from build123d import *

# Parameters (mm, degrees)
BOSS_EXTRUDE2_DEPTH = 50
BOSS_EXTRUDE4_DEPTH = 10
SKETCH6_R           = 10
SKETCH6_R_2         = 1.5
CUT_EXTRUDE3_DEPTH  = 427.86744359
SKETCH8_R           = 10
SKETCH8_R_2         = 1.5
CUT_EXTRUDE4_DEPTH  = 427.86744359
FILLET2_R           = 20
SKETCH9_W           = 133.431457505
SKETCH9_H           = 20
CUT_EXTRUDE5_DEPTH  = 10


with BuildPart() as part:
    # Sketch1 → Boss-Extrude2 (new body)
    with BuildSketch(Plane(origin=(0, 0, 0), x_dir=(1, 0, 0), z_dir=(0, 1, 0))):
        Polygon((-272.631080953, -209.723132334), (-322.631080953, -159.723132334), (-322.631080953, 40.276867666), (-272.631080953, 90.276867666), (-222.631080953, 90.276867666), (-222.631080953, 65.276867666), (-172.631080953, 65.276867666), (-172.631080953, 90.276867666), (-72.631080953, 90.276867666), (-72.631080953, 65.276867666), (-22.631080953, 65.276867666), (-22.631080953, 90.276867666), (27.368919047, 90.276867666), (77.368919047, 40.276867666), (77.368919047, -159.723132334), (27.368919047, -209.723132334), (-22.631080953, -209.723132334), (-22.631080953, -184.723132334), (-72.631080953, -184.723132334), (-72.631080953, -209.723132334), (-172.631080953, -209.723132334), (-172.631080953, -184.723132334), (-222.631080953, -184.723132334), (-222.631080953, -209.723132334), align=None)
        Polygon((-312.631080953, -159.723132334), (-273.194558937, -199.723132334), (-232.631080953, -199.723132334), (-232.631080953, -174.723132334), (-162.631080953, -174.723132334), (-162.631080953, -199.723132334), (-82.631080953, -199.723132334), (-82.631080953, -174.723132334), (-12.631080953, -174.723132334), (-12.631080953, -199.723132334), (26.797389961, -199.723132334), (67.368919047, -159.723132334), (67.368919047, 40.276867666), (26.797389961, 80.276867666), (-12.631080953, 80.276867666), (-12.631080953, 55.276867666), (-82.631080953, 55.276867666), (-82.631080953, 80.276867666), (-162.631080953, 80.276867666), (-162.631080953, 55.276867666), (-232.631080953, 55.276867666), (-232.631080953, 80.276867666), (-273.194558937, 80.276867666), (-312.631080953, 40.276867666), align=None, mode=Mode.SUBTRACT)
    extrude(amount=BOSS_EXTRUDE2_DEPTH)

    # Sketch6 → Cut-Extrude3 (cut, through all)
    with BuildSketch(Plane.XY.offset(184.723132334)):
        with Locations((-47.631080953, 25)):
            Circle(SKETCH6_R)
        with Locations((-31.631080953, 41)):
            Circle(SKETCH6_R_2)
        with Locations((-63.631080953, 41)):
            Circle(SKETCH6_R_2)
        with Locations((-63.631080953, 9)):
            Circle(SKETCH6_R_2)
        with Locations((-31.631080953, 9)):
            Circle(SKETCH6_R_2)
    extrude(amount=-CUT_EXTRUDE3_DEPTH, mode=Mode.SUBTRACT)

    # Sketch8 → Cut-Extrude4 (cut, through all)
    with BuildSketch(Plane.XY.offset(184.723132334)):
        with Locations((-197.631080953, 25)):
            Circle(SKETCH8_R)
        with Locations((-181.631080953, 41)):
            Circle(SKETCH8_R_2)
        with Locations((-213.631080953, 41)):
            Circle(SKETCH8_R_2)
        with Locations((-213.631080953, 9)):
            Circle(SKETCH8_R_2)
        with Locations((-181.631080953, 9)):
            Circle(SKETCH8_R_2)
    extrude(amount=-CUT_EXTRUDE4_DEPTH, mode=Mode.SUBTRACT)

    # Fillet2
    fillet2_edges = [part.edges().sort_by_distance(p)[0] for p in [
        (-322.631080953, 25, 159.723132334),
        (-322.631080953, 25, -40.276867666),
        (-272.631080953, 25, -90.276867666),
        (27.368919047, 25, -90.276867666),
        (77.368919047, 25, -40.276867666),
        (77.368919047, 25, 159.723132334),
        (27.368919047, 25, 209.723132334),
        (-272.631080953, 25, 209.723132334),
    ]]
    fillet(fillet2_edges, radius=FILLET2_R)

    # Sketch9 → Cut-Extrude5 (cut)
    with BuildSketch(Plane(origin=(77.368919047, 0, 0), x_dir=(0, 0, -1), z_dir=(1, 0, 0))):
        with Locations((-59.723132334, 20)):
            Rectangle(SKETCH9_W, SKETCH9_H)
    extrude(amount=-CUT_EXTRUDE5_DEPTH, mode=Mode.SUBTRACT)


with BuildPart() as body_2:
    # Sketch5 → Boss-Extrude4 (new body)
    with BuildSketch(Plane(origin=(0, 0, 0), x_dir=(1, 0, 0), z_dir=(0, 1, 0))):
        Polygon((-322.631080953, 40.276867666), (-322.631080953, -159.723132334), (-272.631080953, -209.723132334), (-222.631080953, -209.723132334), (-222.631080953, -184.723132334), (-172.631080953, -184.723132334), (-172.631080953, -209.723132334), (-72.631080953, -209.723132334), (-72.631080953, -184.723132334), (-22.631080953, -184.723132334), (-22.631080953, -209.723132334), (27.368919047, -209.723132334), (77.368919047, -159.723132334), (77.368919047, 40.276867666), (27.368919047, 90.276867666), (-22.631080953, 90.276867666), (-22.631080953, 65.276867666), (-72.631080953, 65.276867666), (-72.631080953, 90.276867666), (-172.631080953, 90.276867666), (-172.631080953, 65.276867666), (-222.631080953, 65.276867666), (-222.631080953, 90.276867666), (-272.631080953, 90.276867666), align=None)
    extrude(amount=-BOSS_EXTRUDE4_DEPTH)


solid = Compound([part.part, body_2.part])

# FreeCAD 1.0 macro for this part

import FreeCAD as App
import Part
import Sketcher
from FreeCAD import Vector


def edges_at(feature, points):
    """Names of the edges that pass closest to the given points."""
    edges = feature.Shape.Edges
    near = lambda p: min(range(len(edges)), key=lambda i: edges[i].distToShape(Part.Vertex(*p))[0])
    return sorted({f"Edge{near(p) + 1}" for p in points})

doc = App.newDocument("Part")
body = doc.addObject("PartDesign::Body", "Body")

# Sketch on XZ plane
sketch1 = doc.addObject("Sketcher::SketchObject", "Sketch")
body.addObject(sketch1)
sketch1.AttachmentSupport = (doc.XZ_Plane, [""])
sketch1.MapMode = "FlatFace"
sketch1.addGeometry(Part.LineSegment(Vector(-323, 160, 0), Vector(-273, 210, 0)), False)
sketch1.addGeometry(Part.LineSegment(Vector(-273, 210, 0), Vector(-223, 210, 0)), False)
sketch1.addGeometry(Part.LineSegment(Vector(-223, 210, 0), Vector(-223, 185, 0)), False)
sketch1.addGeometry(Part.LineSegment(Vector(-223, 185, 0), Vector(-173, 185, 0)), False)
sketch1.addGeometry(Part.LineSegment(Vector(-173, 185, 0), Vector(-173, 210, 0)), False)
sketch1.addGeometry(Part.LineSegment(Vector(-173, 210, 0), Vector(-73, 210, 0)), False)
sketch1.addGeometry(Part.LineSegment(Vector(-73, 210, 0), Vector(-73, 185, 0)), False)
sketch1.addGeometry(Part.LineSegment(Vector(-73, 185, 0), Vector(-23, 185, 0)), False)
sketch1.addGeometry(Part.LineSegment(Vector(-23, 185, 0), Vector(-23, 210, 0)), False)
sketch1.addGeometry(Part.LineSegment(Vector(-23, 210, 0), Vector(27, 210, 0)), False)
sketch1.addGeometry(Part.LineSegment(Vector(27, 210, 0), Vector(77, 160, 0)), False)
sketch1.addGeometry(Part.LineSegment(Vector(77, 160, 0), Vector(77, -40, 0)), False)
sketch1.addGeometry(Part.LineSegment(Vector(77, -40, 0), Vector(27, -90, 0)), False)
sketch1.addGeometry(Part.LineSegment(Vector(27, -90, 0), Vector(-23, -90, 0)), False)
sketch1.addGeometry(Part.LineSegment(Vector(-23, -90, 0), Vector(-23, -65, 0)), False)
sketch1.addGeometry(Part.LineSegment(Vector(-23, -65, 0), Vector(-73, -65, 0)), False)
sketch1.addGeometry(Part.LineSegment(Vector(-73, -65, 0), Vector(-73, -90, 0)), False)
sketch1.addGeometry(Part.LineSegment(Vector(-73, -90, 0), Vector(-173, -90, 0)), False)
sketch1.addGeometry(Part.LineSegment(Vector(-173, -90, 0), Vector(-173, -65, 0)), False)
sketch1.addGeometry(Part.LineSegment(Vector(-173, -65, 0), Vector(-223, -65, 0)), False)
sketch1.addGeometry(Part.LineSegment(Vector(-223, -65, 0), Vector(-223, -90, 0)), False)
sketch1.addGeometry(Part.LineSegment(Vector(-223, -90, 0), Vector(-273, -90, 0)), False)
sketch1.addGeometry(Part.LineSegment(Vector(-273, -90, 0), Vector(-323, -40, 0)), False)
sketch1.addGeometry(Part.LineSegment(Vector(-323, -40, 0), Vector(-323, 160, 0)), False)
sketch1.addGeometry(Part.LineSegment(Vector(-313, 160, 0), Vector(-313, -40, 0)), False)
sketch1.addGeometry(Part.LineSegment(Vector(-313, -40, 0), Vector(-273, -80, 0)), False)
sketch1.addGeometry(Part.LineSegment(Vector(-273, -80, 0), Vector(-233, -80, 0)), False)
sketch1.addGeometry(Part.LineSegment(Vector(-233, -80, 0), Vector(-233, -55, 0)), False)
sketch1.addGeometry(Part.LineSegment(Vector(-233, -55, 0), Vector(-163, -55, 0)), False)
sketch1.addGeometry(Part.LineSegment(Vector(-163, -55, 0), Vector(-163, -80, 0)), False)
sketch1.addGeometry(Part.LineSegment(Vector(-163, -80, 0), Vector(-83, -80, 0)), False)
sketch1.addGeometry(Part.LineSegment(Vector(-83, -80, 0), Vector(-83, -55, 0)), False)
sketch1.addGeometry(Part.LineSegment(Vector(-83, -55, 0), Vector(-13, -55, 0)), False)
sketch1.addGeometry(Part.LineSegment(Vector(-13, -55, 0), Vector(-13, -80, 0)), False)
sketch1.addGeometry(Part.LineSegment(Vector(-13, -80, 0), Vector(27, -80, 0)), False)
sketch1.addGeometry(Part.LineSegment(Vector(27, -80, 0), Vector(67, -40, 0)), False)
sketch1.addGeometry(Part.LineSegment(Vector(67, -40, 0), Vector(67, 160, 0)), False)
sketch1.addGeometry(Part.LineSegment(Vector(67, 160, 0), Vector(27, 200, 0)), False)
sketch1.addGeometry(Part.LineSegment(Vector(27, 200, 0), Vector(-13, 200, 0)), False)
sketch1.addGeometry(Part.LineSegment(Vector(-13, 200, 0), Vector(-13, 175, 0)), False)
sketch1.addGeometry(Part.LineSegment(Vector(-13, 175, 0), Vector(-83, 175, 0)), False)
sketch1.addGeometry(Part.LineSegment(Vector(-83, 175, 0), Vector(-83, 200, 0)), False)
sketch1.addGeometry(Part.LineSegment(Vector(-83, 200, 0), Vector(-163, 200, 0)), False)
sketch1.addGeometry(Part.LineSegment(Vector(-163, 200, 0), Vector(-163, 175, 0)), False)
sketch1.addGeometry(Part.LineSegment(Vector(-163, 175, 0), Vector(-233, 175, 0)), False)
sketch1.addGeometry(Part.LineSegment(Vector(-233, 175, 0), Vector(-233, 200, 0)), False)
sketch1.addGeometry(Part.LineSegment(Vector(-233, 200, 0), Vector(-273, 200, 0)), False)
sketch1.addGeometry(Part.LineSegment(Vector(-273, 200, 0), Vector(-313, 160, 0)), False)
sketch1.addConstraint(Sketcher.Constraint("Coincident", 0, 2, 1, 1))
sketch1.addConstraint(Sketcher.Constraint("Coincident", 1, 2, 2, 1))
sketch1.addConstraint(Sketcher.Constraint("Coincident", 2, 2, 3, 1))
sketch1.addConstraint(Sketcher.Constraint("Coincident", 3, 2, 4, 1))
sketch1.addConstraint(Sketcher.Constraint("Coincident", 4, 2, 5, 1))
sketch1.addConstraint(Sketcher.Constraint("Coincident", 5, 2, 6, 1))
sketch1.addConstraint(Sketcher.Constraint("Coincident", 6, 2, 7, 1))
sketch1.addConstraint(Sketcher.Constraint("Coincident", 7, 2, 8, 1))
sketch1.addConstraint(Sketcher.Constraint("Coincident", 8, 2, 9, 1))
sketch1.addConstraint(Sketcher.Constraint("Coincident", 9, 2, 10, 1))
sketch1.addConstraint(Sketcher.Constraint("Coincident", 10, 2, 11, 1))
sketch1.addConstraint(Sketcher.Constraint("Coincident", 11, 2, 12, 1))
sketch1.addConstraint(Sketcher.Constraint("Coincident", 12, 2, 13, 1))
sketch1.addConstraint(Sketcher.Constraint("Coincident", 13, 2, 14, 1))
sketch1.addConstraint(Sketcher.Constraint("Coincident", 14, 2, 15, 1))
sketch1.addConstraint(Sketcher.Constraint("Coincident", 15, 2, 16, 1))
sketch1.addConstraint(Sketcher.Constraint("Coincident", 16, 2, 17, 1))
sketch1.addConstraint(Sketcher.Constraint("Coincident", 17, 2, 18, 1))
sketch1.addConstraint(Sketcher.Constraint("Coincident", 18, 2, 19, 1))
sketch1.addConstraint(Sketcher.Constraint("Coincident", 19, 2, 20, 1))
sketch1.addConstraint(Sketcher.Constraint("Coincident", 20, 2, 21, 1))
sketch1.addConstraint(Sketcher.Constraint("Coincident", 21, 2, 22, 1))
sketch1.addConstraint(Sketcher.Constraint("Coincident", 22, 2, 23, 1))
sketch1.addConstraint(Sketcher.Constraint("Coincident", 23, 2, 0, 1))
sketch1.addConstraint(Sketcher.Constraint("Coincident", 24, 2, 25, 1))
sketch1.addConstraint(Sketcher.Constraint("Coincident", 25, 2, 26, 1))
sketch1.addConstraint(Sketcher.Constraint("Coincident", 26, 2, 27, 1))
sketch1.addConstraint(Sketcher.Constraint("Coincident", 27, 2, 28, 1))
sketch1.addConstraint(Sketcher.Constraint("Coincident", 28, 2, 29, 1))
sketch1.addConstraint(Sketcher.Constraint("Coincident", 29, 2, 30, 1))
sketch1.addConstraint(Sketcher.Constraint("Coincident", 30, 2, 31, 1))
sketch1.addConstraint(Sketcher.Constraint("Coincident", 31, 2, 32, 1))
sketch1.addConstraint(Sketcher.Constraint("Coincident", 32, 2, 33, 1))
sketch1.addConstraint(Sketcher.Constraint("Coincident", 33, 2, 34, 1))
sketch1.addConstraint(Sketcher.Constraint("Coincident", 34, 2, 35, 1))
sketch1.addConstraint(Sketcher.Constraint("Coincident", 35, 2, 36, 1))
sketch1.addConstraint(Sketcher.Constraint("Coincident", 36, 2, 37, 1))
sketch1.addConstraint(Sketcher.Constraint("Coincident", 37, 2, 38, 1))
sketch1.addConstraint(Sketcher.Constraint("Coincident", 38, 2, 39, 1))
sketch1.addConstraint(Sketcher.Constraint("Coincident", 39, 2, 40, 1))
sketch1.addConstraint(Sketcher.Constraint("Coincident", 40, 2, 41, 1))
sketch1.addConstraint(Sketcher.Constraint("Coincident", 41, 2, 42, 1))
sketch1.addConstraint(Sketcher.Constraint("Coincident", 42, 2, 43, 1))
sketch1.addConstraint(Sketcher.Constraint("Coincident", 43, 2, 44, 1))
sketch1.addConstraint(Sketcher.Constraint("Coincident", 44, 2, 45, 1))
sketch1.addConstraint(Sketcher.Constraint("Coincident", 45, 2, 46, 1))
sketch1.addConstraint(Sketcher.Constraint("Coincident", 46, 2, 47, 1))
sketch1.addConstraint(Sketcher.Constraint("Coincident", 47, 2, 24, 1))
sketch1.addConstraint(Sketcher.Constraint("Horizontal", 1))
sketch1.addConstraint(Sketcher.Constraint("Vertical", 2))
sketch1.addConstraint(Sketcher.Constraint("Horizontal", 3))
sketch1.addConstraint(Sketcher.Constraint("Vertical", 4))
sketch1.addConstraint(Sketcher.Constraint("Horizontal", 5))
sketch1.addConstraint(Sketcher.Constraint("Vertical", 6))
sketch1.addConstraint(Sketcher.Constraint("Horizontal", 7))
sketch1.addConstraint(Sketcher.Constraint("Vertical", 8))
sketch1.addConstraint(Sketcher.Constraint("Horizontal", 9))
sketch1.addConstraint(Sketcher.Constraint("Vertical", 11))
sketch1.addConstraint(Sketcher.Constraint("Horizontal", 13))
sketch1.addConstraint(Sketcher.Constraint("Vertical", 14))
sketch1.addConstraint(Sketcher.Constraint("Horizontal", 15))
sketch1.addConstraint(Sketcher.Constraint("Vertical", 16))
sketch1.addConstraint(Sketcher.Constraint("Horizontal", 17))
sketch1.addConstraint(Sketcher.Constraint("Vertical", 18))
sketch1.addConstraint(Sketcher.Constraint("Horizontal", 19))
sketch1.addConstraint(Sketcher.Constraint("Vertical", 20))
sketch1.addConstraint(Sketcher.Constraint("Horizontal", 21))
sketch1.addConstraint(Sketcher.Constraint("Vertical", 23))
sketch1.addConstraint(Sketcher.Constraint("Vertical", 24))
sketch1.addConstraint(Sketcher.Constraint("Horizontal", 26))
sketch1.addConstraint(Sketcher.Constraint("Vertical", 27))
sketch1.addConstraint(Sketcher.Constraint("Horizontal", 28))
sketch1.addConstraint(Sketcher.Constraint("Vertical", 29))
sketch1.addConstraint(Sketcher.Constraint("Horizontal", 30))
sketch1.addConstraint(Sketcher.Constraint("Vertical", 31))
sketch1.addConstraint(Sketcher.Constraint("Horizontal", 32))
sketch1.addConstraint(Sketcher.Constraint("Vertical", 33))
sketch1.addConstraint(Sketcher.Constraint("Horizontal", 34))
sketch1.addConstraint(Sketcher.Constraint("Vertical", 36))
sketch1.addConstraint(Sketcher.Constraint("Horizontal", 38))
sketch1.addConstraint(Sketcher.Constraint("Vertical", 39))
sketch1.addConstraint(Sketcher.Constraint("Horizontal", 40))
sketch1.addConstraint(Sketcher.Constraint("Vertical", 41))
sketch1.addConstraint(Sketcher.Constraint("Horizontal", 42))
sketch1.addConstraint(Sketcher.Constraint("Vertical", 43))
sketch1.addConstraint(Sketcher.Constraint("Horizontal", 44))
sketch1.addConstraint(Sketcher.Constraint("Vertical", 45))
sketch1.addConstraint(Sketcher.Constraint("Horizontal", 46))
sketch1.addConstraint(Sketcher.Constraint("Perpendicular", 0, 10))
sketch1.addConstraint(Sketcher.Constraint("Perpendicular", 10, 12))
sketch1.addConstraint(Sketcher.Constraint("Perpendicular", 12, 22))
sketch1.addConstraint(Sketcher.Constraint("Perpendicular", 25, 35))
sketch1.addConstraint(Sketcher.Constraint("Perpendicular", 37, 47))
sketch1.addConstraint(Sketcher.Constraint("Horizontal", 1, 2, 4, 2))
sketch1.addConstraint(Sketcher.Constraint("Horizontal", 3, 2, 6, 2))
sketch1.addConstraint(Sketcher.Constraint("Horizontal", 5, 2, 8, 2))
sketch1.addConstraint(Sketcher.Constraint("Horizontal", 13, 2, 16, 2))
sketch1.addConstraint(Sketcher.Constraint("Horizontal", 15, 2, 18, 2))
sketch1.addConstraint(Sketcher.Constraint("Horizontal", 17, 2, 20, 2))
sketch1.addConstraint(Sketcher.Constraint("Horizontal", 11, 2, 22, 2))
sketch1.addConstraint(Sketcher.Constraint("Horizontal", 10, 2, 23, 2))
sketch1.addConstraint(Sketcher.Constraint("Horizontal", 22, 2, 24, 2))
sketch1.addConstraint(Sketcher.Constraint("Horizontal", 26, 2, 29, 2))
sketch1.addConstraint(Sketcher.Constraint("Horizontal", 28, 2, 31, 2))
sketch1.addConstraint(Sketcher.Constraint("Horizontal", 30, 2, 33, 2))
sketch1.addConstraint(Sketcher.Constraint("Horizontal", 24, 2, 35, 2))
sketch1.addConstraint(Sketcher.Constraint("Horizontal", 23, 2, 36, 2))
sketch1.addConstraint(Sketcher.Constraint("Horizontal", 38, 2, 41, 2))
sketch1.addConstraint(Sketcher.Constraint("Horizontal", 40, 2, 43, 2))
sketch1.addConstraint(Sketcher.Constraint("Horizontal", 42, 2, 45, 2))
sketch1.addConstraint(Sketcher.Constraint("Horizontal", 36, 2, 47, 2))
sketch1.addConstraint(Sketcher.Constraint("Vertical", 9, 2, 12, 2))
sketch1.addConstraint(Sketcher.Constraint("Vertical", 8, 2, 13, 2))
sketch1.addConstraint(Sketcher.Constraint("Vertical", 6, 2, 15, 2))
sketch1.addConstraint(Sketcher.Constraint("Vertical", 4, 2, 17, 2))
sketch1.addConstraint(Sketcher.Constraint("Vertical", 2, 2, 19, 2))
sketch1.addConstraint(Sketcher.Constraint("Vertical", 0, 2, 21, 2))
sketch1.addConstraint(Sketcher.Constraint("Vertical", 34, 2, 37, 2))
sketch1.addConstraint(Sketcher.Constraint("Vertical", 33, 2, 38, 2))
sketch1.addConstraint(Sketcher.Constraint("Vertical", 31, 2, 40, 2))
sketch1.addConstraint(Sketcher.Constraint("Vertical", 29, 2, 42, 2))
sketch1.addConstraint(Sketcher.Constraint("Vertical", 27, 2, 44, 2))
sketch1.addConstraint(Sketcher.Constraint("Vertical", 25, 2, 46, 2))
sketch1.addConstraint(Sketcher.Constraint("Equal", 1, 3))
sketch1.addConstraint(Sketcher.Constraint("Equal", 3, 7))
sketch1.addConstraint(Sketcher.Constraint("Equal", 7, 9))
sketch1.addConstraint(Sketcher.Constraint("Equal", 28, 32))
sketch1.addConstraint(Sketcher.Constraint("Equal", 8, 14))
sketch1.addConstraint(Sketcher.Constraint("Equal", 20, 27))
sketch1.addConstraint(Sketcher.Constraint("Equal", 33, 39))
sketch1.addConstraint(Sketcher.Constraint("DistanceX", 1, 1, 1, 2, 50.0))
sketch1.addConstraint(Sketcher.Constraint("DistanceX", 5, 1, 5, 2, 100.0))
sketch1.addConstraint(Sketcher.Constraint("DistanceX", 28, 1, 28, 2, 70.0))
sketch1.addConstraint(Sketcher.Constraint("DistanceX", 30, 1, 30, 2, 80.0))
sketch1.addConstraint(Sketcher.Constraint("DistanceY", 2, 2, 2, 1, 25.0))
sketch1.addConstraint(Sketcher.Constraint("DistanceY", 11, 2, 11, 1, 200.0))
sketch1.addConstraint(Sketcher.Constraint("DistanceX", 9, 2, 10, 2, 50.0))
sketch1.addConstraint(Sketcher.Constraint("DistanceX", 22, 2, 24, 2, 10.0))
sketch1.addConstraint(Sketcher.Constraint("DistanceY", 21, 2, 25, 2, 10.0))
sketch1.addConstraint(Sketcher.Constraint("DistanceX", 26, 2, 20, 2, 10.0))
sketch1.addConstraint(Sketcher.Constraint("DistanceX", 35, 2, 11, 2, 10.0))
sketch1.addConstraint(Sketcher.Constraint("DistanceX", 34, 1, 34, 2, 39.428471))
sketch1.addConstraint(Sketcher.Constraint("DistanceX", 0, 2, -1, 1, 272.631081))
sketch1.addConstraint(Sketcher.Constraint("DistanceY", -1, 1, 0, 2, 209.723132))
pad1 = doc.addObject("PartDesign::Pad", "Pad")
body.addObject(pad1)
pad1.Profile = sketch1
pad1.Length = 50
pad1.Reversed = True

# Sketch on XY plane
sketch2 = doc.addObject("Sketcher::SketchObject", "Sketch001")
body.addObject(sketch2)
sketch2.AttachmentSupport = (doc.XY_Plane, [""])
sketch2.MapMode = "FlatFace"
sketch2.AttachmentOffset = App.Placement(Vector(0, 0, 184.723132), App.Rotation())
sketch2.addGeometry(Part.Circle(Vector(-47.6, 25, 0), Vector(0, 0, 1), 10), False)
sketch2.addGeometry(Part.Circle(Vector(-31.6, 41, 0), Vector(0, 0, 1), 1.5), False)
sketch2.addGeometry(Part.Circle(Vector(-63.6, 41, 0), Vector(0, 0, 1), 1.5), False)
sketch2.addGeometry(Part.Circle(Vector(-63.6, 9, 0), Vector(0, 0, 1), 1.5), False)
sketch2.addGeometry(Part.Circle(Vector(-31.6, 9, 0), Vector(0, 0, 1), 1.5), False)
sketch2.addConstraint(Sketcher.Constraint("Equal", 1, 2))
sketch2.addConstraint(Sketcher.Constraint("Equal", 2, 3))
sketch2.addConstraint(Sketcher.Constraint("Equal", 3, 4))
sketch2.addConstraint(Sketcher.Constraint("Horizontal", 1, 3, 2, 3))
sketch2.addConstraint(Sketcher.Constraint("Horizontal", 3, 3, 4, 3))
sketch2.addConstraint(Sketcher.Constraint("Vertical", 2, 3, 3, 3))
sketch2.addConstraint(Sketcher.Constraint("Vertical", 1, 3, 4, 3))
sketch2.addConstraint(Sketcher.Constraint("Diameter", 0, 20.0))
sketch2.addConstraint(Sketcher.Constraint("Diameter", 1, 3.0))
sketch2.addConstraint(Sketcher.Constraint("DistanceY", -1, 1, 0, 3, 25.0))
sketch2.addConstraint(Sketcher.Constraint("DistanceY", -1, 1, 1, 3, 41.0))
sketch2.addConstraint(Sketcher.Constraint("DistanceY", -1, 1, 3, 3, 9.0))
sketch2.addConstraint(Sketcher.Constraint("DistanceX", 0, 3, 1, 3, 16.0))
sketch2.addConstraint(Sketcher.Constraint("DistanceX", 2, 3, 0, 3, 16.0))
sketch2.addConstraint(Sketcher.Constraint("DistanceX", 0, 3, -1, 1, 47.631081))
pocket1 = doc.addObject("PartDesign::Pocket", "Pocket")
body.addObject(pocket1)
pocket1.Profile = sketch2
pocket1.Type = "ThroughAll"

# Sketch on XY plane
sketch3 = doc.addObject("Sketcher::SketchObject", "Sketch002")
body.addObject(sketch3)
sketch3.AttachmentSupport = (doc.XY_Plane, [""])
sketch3.MapMode = "FlatFace"
sketch3.AttachmentOffset = App.Placement(Vector(0, 0, 184.723132), App.Rotation())
sketch3.addGeometry(Part.Circle(Vector(-197.6, 25, 0), Vector(0, 0, 1), 10), False)
sketch3.addGeometry(Part.Circle(Vector(-181.6, 41, 0), Vector(0, 0, 1), 1.5), False)
sketch3.addGeometry(Part.Circle(Vector(-213.6, 41, 0), Vector(0, 0, 1), 1.5), False)
sketch3.addGeometry(Part.Circle(Vector(-213.6, 9, 0), Vector(0, 0, 1), 1.5), False)
sketch3.addGeometry(Part.Circle(Vector(-181.6, 9, 0), Vector(0, 0, 1), 1.5), False)
sketch3.addConstraint(Sketcher.Constraint("Equal", 1, 2))
sketch3.addConstraint(Sketcher.Constraint("Equal", 2, 3))
sketch3.addConstraint(Sketcher.Constraint("Equal", 3, 4))
sketch3.addConstraint(Sketcher.Constraint("Horizontal", 1, 3, 2, 3))
sketch3.addConstraint(Sketcher.Constraint("Horizontal", 3, 3, 4, 3))
sketch3.addConstraint(Sketcher.Constraint("Vertical", 2, 3, 3, 3))
sketch3.addConstraint(Sketcher.Constraint("Vertical", 1, 3, 4, 3))
sketch3.addConstraint(Sketcher.Constraint("Diameter", 0, 20.0))
sketch3.addConstraint(Sketcher.Constraint("Diameter", 1, 3.0))
sketch3.addConstraint(Sketcher.Constraint("DistanceY", -1, 1, 0, 3, 25.0))
sketch3.addConstraint(Sketcher.Constraint("DistanceY", -1, 1, 1, 3, 41.0))
sketch3.addConstraint(Sketcher.Constraint("DistanceY", -1, 1, 3, 3, 9.0))
sketch3.addConstraint(Sketcher.Constraint("DistanceX", 0, 3, 1, 3, 16.0))
sketch3.addConstraint(Sketcher.Constraint("DistanceX", 2, 3, 0, 3, 16.0))
sketch3.addConstraint(Sketcher.Constraint("DistanceX", 0, 3, -1, 1, 197.631081))
pocket2 = doc.addObject("PartDesign::Pocket", "Pocket001")
body.addObject(pocket2)
pocket2.Profile = sketch3
pocket2.Type = "ThroughAll"
doc.recompute()

fillet = doc.addObject("PartDesign::Fillet", "Fillet")
body.addObject(fillet)
fillet.Base = (pocket2, edges_at(pocket2, [
    (-322.631, 25, 159.723),
    (-322.631, 25, -40.277),
    (-272.631, 25, -90.277),
    (27.369, 25, -90.277),
    (77.369, 25, -40.277),
    (77.369, 25, 159.723),
    (27.369, 25, 209.723),
    (-272.631, 25, 209.723),
]))
fillet.Radius = 20

# Sketch on YZ plane
sketch4 = doc.addObject("Sketcher::SketchObject", "Sketch003")
body.addObject(sketch4)
sketch4.AttachmentSupport = (doc.YZ_Plane, [""])
sketch4.MapMode = "FlatFace"
sketch4.AttachmentOffset = App.Placement(Vector(0, 0, 77.368919), App.Rotation())
sketch4.addGeometry(Part.LineSegment(Vector(30, 126, 0), Vector(10, 126, 0)), False)
sketch4.addGeometry(Part.LineSegment(Vector(10, 126, 0), Vector(10, -7, 0)), False)
sketch4.addGeometry(Part.LineSegment(Vector(10, -7, 0), Vector(30, -7, 0)), False)
sketch4.addGeometry(Part.LineSegment(Vector(30, -7, 0), Vector(30, 126, 0)), False)
sketch4.addConstraint(Sketcher.Constraint("Coincident", 0, 2, 1, 1))
sketch4.addConstraint(Sketcher.Constraint("Coincident", 1, 2, 2, 1))
sketch4.addConstraint(Sketcher.Constraint("Coincident", 2, 2, 3, 1))
sketch4.addConstraint(Sketcher.Constraint("Coincident", 3, 2, 0, 1))
sketch4.addConstraint(Sketcher.Constraint("Horizontal", 0))
sketch4.addConstraint(Sketcher.Constraint("Vertical", 1))
sketch4.addConstraint(Sketcher.Constraint("Horizontal", 2))
sketch4.addConstraint(Sketcher.Constraint("Vertical", 3))
sketch4.addConstraint(Sketcher.Constraint("DistanceX", 0, 2, 0, 1, 20.0))
sketch4.addConstraint(Sketcher.Constraint("DistanceX", -1, 1, 0, 2, 10.0))
sketch4.addConstraint(Sketcher.Constraint("DistanceY", 1, 2, 1, 1, 133.431458))
sketch4.addConstraint(Sketcher.Constraint("DistanceY", -1, 1, 0, 2, 126.438861))
pocket3 = doc.addObject("PartDesign::Pocket", "Pocket002")
body.addObject(pocket3)
pocket3.Profile = sketch4
pocket3.Length = 10
body2 = doc.addObject("PartDesign::Body", "Body001")

# Sketch on XZ plane
sketch5 = doc.addObject("Sketcher::SketchObject", "Sketch004")
body2.addObject(sketch5)
sketch5.AttachmentSupport = (doc.getObject("XZ_Plane001"), [""])
sketch5.MapMode = "FlatFace"
sketch5.addGeometry(Part.LineSegment(Vector(-323, -40, 0), Vector(-323, 160, 0)), False)
sketch5.addGeometry(Part.LineSegment(Vector(-323, 160, 0), Vector(-273, 210, 0)), False)
sketch5.addGeometry(Part.LineSegment(Vector(-273, 210, 0), Vector(-223, 210, 0)), False)
sketch5.addGeometry(Part.LineSegment(Vector(-223, 210, 0), Vector(-223, 185, 0)), False)
sketch5.addGeometry(Part.LineSegment(Vector(-223, 185, 0), Vector(-173, 185, 0)), False)
sketch5.addGeometry(Part.LineSegment(Vector(-173, 185, 0), Vector(-173, 210, 0)), False)
sketch5.addGeometry(Part.LineSegment(Vector(-173, 210, 0), Vector(-73, 210, 0)), False)
sketch5.addGeometry(Part.LineSegment(Vector(-73, 210, 0), Vector(-73, 185, 0)), False)
sketch5.addGeometry(Part.LineSegment(Vector(-73, 185, 0), Vector(-23, 185, 0)), False)
sketch5.addGeometry(Part.LineSegment(Vector(-23, 185, 0), Vector(-23, 210, 0)), False)
sketch5.addGeometry(Part.LineSegment(Vector(-23, 210, 0), Vector(27, 210, 0)), False)
sketch5.addGeometry(Part.LineSegment(Vector(27, 210, 0), Vector(77, 160, 0)), False)
sketch5.addGeometry(Part.LineSegment(Vector(77, 160, 0), Vector(77, -40, 0)), False)
sketch5.addGeometry(Part.LineSegment(Vector(77, -40, 0), Vector(27, -90, 0)), False)
sketch5.addGeometry(Part.LineSegment(Vector(27, -90, 0), Vector(-23, -90, 0)), False)
sketch5.addGeometry(Part.LineSegment(Vector(-23, -90, 0), Vector(-23, -65, 0)), False)
sketch5.addGeometry(Part.LineSegment(Vector(-23, -65, 0), Vector(-73, -65, 0)), False)
sketch5.addGeometry(Part.LineSegment(Vector(-73, -65, 0), Vector(-73, -90, 0)), False)
sketch5.addGeometry(Part.LineSegment(Vector(-73, -90, 0), Vector(-173, -90, 0)), False)
sketch5.addGeometry(Part.LineSegment(Vector(-173, -90, 0), Vector(-173, -65, 0)), False)
sketch5.addGeometry(Part.LineSegment(Vector(-173, -65, 0), Vector(-223, -65, 0)), False)
sketch5.addGeometry(Part.LineSegment(Vector(-223, -65, 0), Vector(-223, -90, 0)), False)
sketch5.addGeometry(Part.LineSegment(Vector(-223, -90, 0), Vector(-273, -90, 0)), False)
sketch5.addGeometry(Part.LineSegment(Vector(-273, -90, 0), Vector(-323, -40, 0)), False)
sketch5.addConstraint(Sketcher.Constraint("Coincident", 0, 2, 1, 1))
sketch5.addConstraint(Sketcher.Constraint("Coincident", 1, 2, 2, 1))
sketch5.addConstraint(Sketcher.Constraint("Coincident", 2, 2, 3, 1))
sketch5.addConstraint(Sketcher.Constraint("Coincident", 3, 2, 4, 1))
sketch5.addConstraint(Sketcher.Constraint("Coincident", 4, 2, 5, 1))
sketch5.addConstraint(Sketcher.Constraint("Coincident", 5, 2, 6, 1))
sketch5.addConstraint(Sketcher.Constraint("Coincident", 6, 2, 7, 1))
sketch5.addConstraint(Sketcher.Constraint("Coincident", 7, 2, 8, 1))
sketch5.addConstraint(Sketcher.Constraint("Coincident", 8, 2, 9, 1))
sketch5.addConstraint(Sketcher.Constraint("Coincident", 9, 2, 10, 1))
sketch5.addConstraint(Sketcher.Constraint("Coincident", 10, 2, 11, 1))
sketch5.addConstraint(Sketcher.Constraint("Coincident", 11, 2, 12, 1))
sketch5.addConstraint(Sketcher.Constraint("Coincident", 12, 2, 13, 1))
sketch5.addConstraint(Sketcher.Constraint("Coincident", 13, 2, 14, 1))
sketch5.addConstraint(Sketcher.Constraint("Coincident", 14, 2, 15, 1))
sketch5.addConstraint(Sketcher.Constraint("Coincident", 15, 2, 16, 1))
sketch5.addConstraint(Sketcher.Constraint("Coincident", 16, 2, 17, 1))
sketch5.addConstraint(Sketcher.Constraint("Coincident", 17, 2, 18, 1))
sketch5.addConstraint(Sketcher.Constraint("Coincident", 18, 2, 19, 1))
sketch5.addConstraint(Sketcher.Constraint("Coincident", 19, 2, 20, 1))
sketch5.addConstraint(Sketcher.Constraint("Coincident", 20, 2, 21, 1))
sketch5.addConstraint(Sketcher.Constraint("Coincident", 21, 2, 22, 1))
sketch5.addConstraint(Sketcher.Constraint("Coincident", 22, 2, 23, 1))
sketch5.addConstraint(Sketcher.Constraint("Coincident", 23, 2, 0, 1))
sketch5.addConstraint(Sketcher.Constraint("Vertical", 0))
sketch5.addConstraint(Sketcher.Constraint("Horizontal", 2))
sketch5.addConstraint(Sketcher.Constraint("Vertical", 3))
sketch5.addConstraint(Sketcher.Constraint("Horizontal", 4))
sketch5.addConstraint(Sketcher.Constraint("Vertical", 5))
sketch5.addConstraint(Sketcher.Constraint("Horizontal", 6))
sketch5.addConstraint(Sketcher.Constraint("Vertical", 7))
sketch5.addConstraint(Sketcher.Constraint("Horizontal", 8))
sketch5.addConstraint(Sketcher.Constraint("Vertical", 9))
sketch5.addConstraint(Sketcher.Constraint("Horizontal", 10))
sketch5.addConstraint(Sketcher.Constraint("Vertical", 12))
sketch5.addConstraint(Sketcher.Constraint("Horizontal", 14))
sketch5.addConstraint(Sketcher.Constraint("Vertical", 15))
sketch5.addConstraint(Sketcher.Constraint("Horizontal", 16))
sketch5.addConstraint(Sketcher.Constraint("Vertical", 17))
sketch5.addConstraint(Sketcher.Constraint("Horizontal", 18))
sketch5.addConstraint(Sketcher.Constraint("Vertical", 19))
sketch5.addConstraint(Sketcher.Constraint("Horizontal", 20))
sketch5.addConstraint(Sketcher.Constraint("Vertical", 21))
sketch5.addConstraint(Sketcher.Constraint("Horizontal", 22))
sketch5.addConstraint(Sketcher.Constraint("Perpendicular", 1, 11))
sketch5.addConstraint(Sketcher.Constraint("Perpendicular", 11, 13))
sketch5.addConstraint(Sketcher.Constraint("Perpendicular", 13, 23))
sketch5.addConstraint(Sketcher.Constraint("Horizontal", 2, 2, 5, 2))
sketch5.addConstraint(Sketcher.Constraint("Horizontal", 4, 2, 7, 2))
sketch5.addConstraint(Sketcher.Constraint("Horizontal", 6, 2, 9, 2))
sketch5.addConstraint(Sketcher.Constraint("Horizontal", 0, 2, 11, 2))
sketch5.addConstraint(Sketcher.Constraint("Horizontal", 14, 2, 17, 2))
sketch5.addConstraint(Sketcher.Constraint("Horizontal", 16, 2, 19, 2))
sketch5.addConstraint(Sketcher.Constraint("Horizontal", 18, 2, 21, 2))
sketch5.addConstraint(Sketcher.Constraint("Horizontal", 12, 2, 23, 2))
sketch5.addConstraint(Sketcher.Constraint("Vertical", 10, 2, 13, 2))
sketch5.addConstraint(Sketcher.Constraint("Vertical", 9, 2, 14, 2))
sketch5.addConstraint(Sketcher.Constraint("Vertical", 7, 2, 16, 2))
sketch5.addConstraint(Sketcher.Constraint("Vertical", 5, 2, 18, 2))
sketch5.addConstraint(Sketcher.Constraint("Vertical", 3, 2, 20, 2))
sketch5.addConstraint(Sketcher.Constraint("Vertical", 1, 2, 22, 2))
sketch5.addConstraint(Sketcher.Constraint("Equal", 2, 4))
sketch5.addConstraint(Sketcher.Constraint("Equal", 4, 8))
sketch5.addConstraint(Sketcher.Constraint("Equal", 8, 10))
sketch5.addConstraint(Sketcher.Constraint("Equal", 9, 15))
sketch5.addConstraint(Sketcher.Constraint("DistanceX", 2, 1, 2, 2, 50.0))
sketch5.addConstraint(Sketcher.Constraint("DistanceX", 6, 1, 6, 2, 100.0))
sketch5.addConstraint(Sketcher.Constraint("DistanceY", 0, 1, 0, 2, 200.0))
sketch5.addConstraint(Sketcher.Constraint("DistanceY", 3, 2, 3, 1, 25.0))
sketch5.addConstraint(Sketcher.Constraint("DistanceX", 0, 2, 1, 2, 50.0))
sketch5.addConstraint(Sketcher.Constraint("DistanceX", 0, 2, -1, 1, 322.631081))
sketch5.addConstraint(Sketcher.Constraint("DistanceY", -1, 1, 0, 2, 159.723132))
pad2 = doc.addObject("PartDesign::Pad", "Pad001")
body2.addObject(pad2)
pad2.Profile = sketch5
pad2.Length = 10

doc.recompute()
